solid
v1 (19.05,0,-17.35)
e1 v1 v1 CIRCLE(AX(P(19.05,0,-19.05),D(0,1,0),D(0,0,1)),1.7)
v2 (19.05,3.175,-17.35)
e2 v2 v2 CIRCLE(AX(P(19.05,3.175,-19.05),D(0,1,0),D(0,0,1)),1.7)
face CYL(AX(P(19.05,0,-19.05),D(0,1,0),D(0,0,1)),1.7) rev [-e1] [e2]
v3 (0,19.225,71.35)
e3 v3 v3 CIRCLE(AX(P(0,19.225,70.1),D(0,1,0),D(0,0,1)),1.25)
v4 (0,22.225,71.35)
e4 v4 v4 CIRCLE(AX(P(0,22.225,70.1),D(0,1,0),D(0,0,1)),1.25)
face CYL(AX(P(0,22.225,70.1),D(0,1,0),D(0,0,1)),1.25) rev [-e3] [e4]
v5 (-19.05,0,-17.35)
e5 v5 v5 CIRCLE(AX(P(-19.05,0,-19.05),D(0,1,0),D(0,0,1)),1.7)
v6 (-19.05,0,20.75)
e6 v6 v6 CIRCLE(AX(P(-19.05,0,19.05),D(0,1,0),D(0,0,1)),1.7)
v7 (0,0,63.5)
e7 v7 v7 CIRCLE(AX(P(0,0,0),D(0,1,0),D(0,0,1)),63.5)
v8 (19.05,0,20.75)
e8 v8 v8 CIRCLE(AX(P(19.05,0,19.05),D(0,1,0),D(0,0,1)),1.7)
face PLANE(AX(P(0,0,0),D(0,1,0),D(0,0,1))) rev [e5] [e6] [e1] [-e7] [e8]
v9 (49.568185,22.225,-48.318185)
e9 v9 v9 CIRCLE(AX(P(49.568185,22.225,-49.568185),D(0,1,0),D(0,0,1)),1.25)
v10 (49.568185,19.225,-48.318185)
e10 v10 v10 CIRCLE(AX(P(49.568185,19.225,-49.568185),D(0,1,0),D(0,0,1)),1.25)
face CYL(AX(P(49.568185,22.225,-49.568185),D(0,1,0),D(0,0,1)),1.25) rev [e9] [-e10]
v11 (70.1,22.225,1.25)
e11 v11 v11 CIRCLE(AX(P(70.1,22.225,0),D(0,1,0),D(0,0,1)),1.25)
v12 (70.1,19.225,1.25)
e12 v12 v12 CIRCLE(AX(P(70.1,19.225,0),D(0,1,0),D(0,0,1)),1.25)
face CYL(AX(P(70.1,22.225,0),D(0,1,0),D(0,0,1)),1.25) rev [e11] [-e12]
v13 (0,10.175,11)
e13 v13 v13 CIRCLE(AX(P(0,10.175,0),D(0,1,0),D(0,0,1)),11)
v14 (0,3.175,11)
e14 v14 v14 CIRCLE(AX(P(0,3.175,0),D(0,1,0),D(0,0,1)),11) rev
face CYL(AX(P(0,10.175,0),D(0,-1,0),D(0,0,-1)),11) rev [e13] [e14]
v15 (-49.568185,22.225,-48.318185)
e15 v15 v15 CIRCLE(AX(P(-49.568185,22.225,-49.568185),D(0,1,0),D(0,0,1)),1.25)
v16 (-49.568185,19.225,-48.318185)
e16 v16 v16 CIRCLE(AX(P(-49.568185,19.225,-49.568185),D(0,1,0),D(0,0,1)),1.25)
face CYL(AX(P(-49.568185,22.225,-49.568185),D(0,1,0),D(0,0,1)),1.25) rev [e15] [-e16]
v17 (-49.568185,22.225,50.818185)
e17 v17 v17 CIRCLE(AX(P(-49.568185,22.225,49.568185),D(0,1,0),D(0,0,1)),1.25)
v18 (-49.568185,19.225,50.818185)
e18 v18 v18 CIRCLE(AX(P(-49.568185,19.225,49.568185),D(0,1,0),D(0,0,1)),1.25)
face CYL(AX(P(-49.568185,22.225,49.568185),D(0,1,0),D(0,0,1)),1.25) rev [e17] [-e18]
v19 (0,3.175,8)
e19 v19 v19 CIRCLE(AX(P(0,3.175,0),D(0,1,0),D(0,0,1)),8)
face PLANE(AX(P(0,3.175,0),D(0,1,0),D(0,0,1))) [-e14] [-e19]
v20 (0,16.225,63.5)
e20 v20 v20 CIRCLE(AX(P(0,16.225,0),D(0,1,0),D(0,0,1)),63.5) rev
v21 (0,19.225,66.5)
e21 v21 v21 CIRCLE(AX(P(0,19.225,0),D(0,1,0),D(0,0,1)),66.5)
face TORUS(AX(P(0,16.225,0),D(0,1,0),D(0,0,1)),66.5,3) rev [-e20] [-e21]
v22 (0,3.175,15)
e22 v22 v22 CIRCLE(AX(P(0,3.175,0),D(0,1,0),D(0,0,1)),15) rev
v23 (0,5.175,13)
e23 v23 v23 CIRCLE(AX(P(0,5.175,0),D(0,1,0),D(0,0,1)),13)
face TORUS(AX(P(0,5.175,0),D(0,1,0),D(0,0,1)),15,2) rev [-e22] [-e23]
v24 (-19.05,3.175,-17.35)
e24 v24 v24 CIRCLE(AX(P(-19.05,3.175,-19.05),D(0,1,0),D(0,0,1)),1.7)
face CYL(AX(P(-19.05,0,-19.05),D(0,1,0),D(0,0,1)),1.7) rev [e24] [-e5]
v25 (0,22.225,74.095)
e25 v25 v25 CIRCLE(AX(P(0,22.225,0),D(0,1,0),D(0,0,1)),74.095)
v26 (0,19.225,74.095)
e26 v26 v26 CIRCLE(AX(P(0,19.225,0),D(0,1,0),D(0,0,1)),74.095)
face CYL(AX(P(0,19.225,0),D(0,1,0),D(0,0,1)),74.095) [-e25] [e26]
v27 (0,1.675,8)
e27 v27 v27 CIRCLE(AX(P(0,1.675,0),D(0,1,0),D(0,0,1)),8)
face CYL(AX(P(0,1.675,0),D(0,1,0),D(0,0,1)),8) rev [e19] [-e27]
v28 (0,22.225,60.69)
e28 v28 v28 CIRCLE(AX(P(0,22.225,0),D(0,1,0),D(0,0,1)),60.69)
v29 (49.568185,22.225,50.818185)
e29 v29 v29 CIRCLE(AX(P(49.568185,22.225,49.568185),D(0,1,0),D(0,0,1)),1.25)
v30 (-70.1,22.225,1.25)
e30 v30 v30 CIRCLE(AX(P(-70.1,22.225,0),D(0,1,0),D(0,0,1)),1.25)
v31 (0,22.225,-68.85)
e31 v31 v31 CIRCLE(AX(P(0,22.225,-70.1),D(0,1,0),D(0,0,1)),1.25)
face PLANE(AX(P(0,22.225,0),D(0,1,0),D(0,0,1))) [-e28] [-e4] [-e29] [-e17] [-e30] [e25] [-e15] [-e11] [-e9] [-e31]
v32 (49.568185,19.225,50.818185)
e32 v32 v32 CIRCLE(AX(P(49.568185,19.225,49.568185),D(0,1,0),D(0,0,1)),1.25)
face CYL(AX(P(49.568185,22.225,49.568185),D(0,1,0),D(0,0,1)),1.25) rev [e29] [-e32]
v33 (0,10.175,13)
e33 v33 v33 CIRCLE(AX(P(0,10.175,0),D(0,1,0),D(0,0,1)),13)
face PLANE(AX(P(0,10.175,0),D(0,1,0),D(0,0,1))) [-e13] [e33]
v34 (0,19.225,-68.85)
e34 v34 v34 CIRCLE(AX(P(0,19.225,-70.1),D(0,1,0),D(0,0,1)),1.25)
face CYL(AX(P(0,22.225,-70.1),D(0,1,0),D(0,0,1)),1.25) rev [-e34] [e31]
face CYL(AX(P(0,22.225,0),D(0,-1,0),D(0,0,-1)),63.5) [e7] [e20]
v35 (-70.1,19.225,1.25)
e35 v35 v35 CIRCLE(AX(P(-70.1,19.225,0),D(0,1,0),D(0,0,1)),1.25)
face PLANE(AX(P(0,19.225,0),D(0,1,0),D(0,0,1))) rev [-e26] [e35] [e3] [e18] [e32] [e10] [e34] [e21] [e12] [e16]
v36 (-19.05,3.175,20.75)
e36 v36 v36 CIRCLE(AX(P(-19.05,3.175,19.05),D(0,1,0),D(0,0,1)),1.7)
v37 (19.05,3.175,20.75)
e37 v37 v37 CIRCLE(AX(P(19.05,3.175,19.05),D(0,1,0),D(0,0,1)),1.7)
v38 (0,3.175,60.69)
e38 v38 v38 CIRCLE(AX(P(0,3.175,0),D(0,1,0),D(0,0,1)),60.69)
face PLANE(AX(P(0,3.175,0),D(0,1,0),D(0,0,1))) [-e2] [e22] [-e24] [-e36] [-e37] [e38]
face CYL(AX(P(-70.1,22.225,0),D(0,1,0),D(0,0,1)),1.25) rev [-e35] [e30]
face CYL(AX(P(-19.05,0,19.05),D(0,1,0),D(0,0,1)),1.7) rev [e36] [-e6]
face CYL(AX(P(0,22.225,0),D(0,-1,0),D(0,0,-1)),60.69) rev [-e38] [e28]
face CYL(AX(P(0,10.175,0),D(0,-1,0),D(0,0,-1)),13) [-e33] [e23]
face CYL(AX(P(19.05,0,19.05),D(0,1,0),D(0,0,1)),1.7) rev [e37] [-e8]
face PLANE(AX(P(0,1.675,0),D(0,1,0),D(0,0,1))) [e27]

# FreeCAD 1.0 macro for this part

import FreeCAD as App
import Part
import Sketcher
Q = App.Units.Quantity


def edges_at(feature, points):
    """Names of the edges that pass closest to the given points."""
    edges = feature.Shape.Edges
    near = lambda p: min(range(len(edges)), key=lambda i: edges[i].distToShape(Part.Vertex(*p))[0])
    return sorted({f"Edge{near(p) + 1}" for p in points})

doc = App.newDocument("Part")
body = doc.addObject("PartDesign::Body", "Body")

sketch1 = body.newObject("Sketcher::SketchObject", "Sketch")
sketch1.AttachmentSupport = (doc.getObject("XZ_Plane"), [""])
sketch1.MapMode = "FlatFace"
sketch1.addGeometry(Part.Circle(App.Vector(0, 0, 0), App.Vector(0, 0, 1), 64), False)
sketch1.addGeometry(Part.Circle(App.Vector(0, 0, 0), App.Vector(0, 0, 1), 61), False)
sketch1.addConstraint(Sketcher.Constraint("Coincident", 0, 3, -1, 1))
sketch1.addConstraint(Sketcher.Constraint("Coincident", 1, 3, -1, 1))
sketch1.addConstraint(Sketcher.Constraint("Diameter", 0, Q("127 mm")))
sketch1.addConstraint(Sketcher.Constraint("Diameter", 1, Q("121.38 mm")))
pad1 = body.newObject("PartDesign::Pad", "Pad")
pad1.Profile = sketch1
pad1.Length = 22.225
pad1.Reversed = True

sketch2 = body.newObject("Sketcher::SketchObject", "Sketch001")
sketch2.AttachmentSupport = (doc.getObject("XZ_Plane"), [""])
sketch2.MapMode = "FlatFace"
sketch2.addGeometry(Part.Circle(App.Vector(0, 0, 0), App.Vector(0, 0, 1), 64), False)
sketch2.addConstraint(Sketcher.Constraint("Coincident", 0, 3, -1, 1))
sketch2.addConstraint(Sketcher.Constraint("Diameter", 0, Q("127 mm")))
pad2 = body.newObject("PartDesign::Pad", "Pad001")
pad2.Profile = sketch2
pad2.Length = 3.175
pad2.Reversed = True

sketch3 = body.newObject("Sketcher::SketchObject", "Sketch002")
sketch3.AttachmentSupport = (doc.getObject("XZ_Plane"), [""])
sketch3.MapMode = "FlatFace"
sketch3.AttachmentOffset = App.Placement(App.Vector(0, 0, -3.175), App.Rotation())
sketch3.addGeometry(Part.Circle(App.Vector(0, 0, 0), App.Vector(0, 0, 1), 13), False)
sketch3.addGeometry(Part.Circle(App.Vector(0, 0, 0), App.Vector(0, 0, 1), 11), False)
sketch3.addConstraint(Sketcher.Constraint("Coincident", 0, 3, -1, 1))
sketch3.addConstraint(Sketcher.Constraint("Coincident", 1, 3, -1, 1))
sketch3.addConstraint(Sketcher.Constraint("Diameter", 0, Q("26 mm")))
sketch3.addConstraint(Sketcher.Constraint("Diameter", 1, Q("22 mm")))
pad3 = body.newObject("PartDesign::Pad", "Pad002")
pad3.Profile = sketch3
pad3.Length = 7
pad3.Reversed = True

sketch4 = body.newObject("Sketcher::SketchObject", "Sketch003")
sketch4.AttachmentSupport = (doc.getObject("XZ_Plane"), [""])
sketch4.MapMode = "FlatFace"
sketch4.AttachmentOffset = App.Placement(App.Vector(0, 0, -22.225), App.Rotation())
sketch4.addGeometry(Part.Circle(App.Vector(0, 0, 0), App.Vector(0, 0, 1), 74), False)
sketch4.addGeometry(Part.Circle(App.Vector(0, 0, 0), App.Vector(0, 0, 1), 64), False)
sketch4.addConstraint(Sketcher.Constraint("Coincident", 0, 3, -1, 1))
sketch4.addConstraint(Sketcher.Constraint("Coincident", 1, 3, -1, 1))
sketch4.addConstraint(Sketcher.Constraint("Diameter", 1, Q("127 mm")))
sketch4.addConstraint(Sketcher.Constraint("Diameter", 0, Q("148.19 mm")))
pad4 = body.newObject("PartDesign::Pad", "Pad003")
pad4.Profile = sketch4
pad4.Length = 3

sketch5 = body.newObject("Sketcher::SketchObject", "Sketch004")
sketch5.AttachmentSupport = (doc.getObject("XZ_Plane"), [""])
sketch5.MapMode = "FlatFace"
sketch5.AttachmentOffset = App.Placement(App.Vector(0, 0, -22.225), App.Rotation())
sketch5.addGeometry(Part.Circle(App.Vector(-70.1, 0, 0), App.Vector(0, 0, 1), 1.2), False)
sketch5.addConstraint(Sketcher.Constraint("PointOnObject", 0, 3, -1))
sketch5.addConstraint(Sketcher.Constraint("Diameter", 0, Q("2.5 mm")))
sketch5.addConstraint(Sketcher.Constraint("DistanceX", 0, 3, -1, 1, Q("70.1 mm")))
doc.recompute()
hole = body.newObject("PartDesign::Hole", "Hole")
hole.Profile = sketch5
hole.ThreadType = "None"
hole.Diameter = 2.5
hole.DepthType = "ThroughAll"
hole.Reversed = True
doc.recompute()

polarpattern = body.newObject("PartDesign::PolarPattern", "PolarPattern")
polarpattern.Originals = [hole]
polarpattern.Axis = (doc.getObject("Y_Axis"), [""])
polarpattern.Angle = 360
polarpattern.Occurrences = 8
body.Tip = polarpattern

sketch6 = body.newObject("Sketcher::SketchObject", "Sketch005")
sketch6.AttachmentSupport = (doc.getObject("XZ_Plane"), [""])
sketch6.MapMode = "FlatFace"
sketch6.AttachmentOffset = App.Placement(App.Vector(0, 0, -3.175), App.Rotation())
sketch6.addGeometry(Part.Circle(App.Vector(0, 0, 0), App.Vector(0, 0, 1), 8), False)
sketch6.addConstraint(Sketcher.Constraint("Coincident", 0, 3, -1, 1))
sketch6.addConstraint(Sketcher.Constraint("Diameter", 0, Q("16 mm")))
pocket1 = body.newObject("PartDesign::Pocket", "Pocket")
pocket1.Profile = sketch6
pocket1.Length = 1.5
pocket1.Reversed = True
doc.recompute()

fillet = body.newObject("PartDesign::Fillet", "Fillet")
fillet.Base = (pocket1, edges_at(pocket1, [(-13, 3.175, 0)]))
fillet.Radius = 2
doc.recompute()

fillet2 = body.newObject("PartDesign::Fillet", "Fillet001")
fillet2.Base = (fillet, edges_at(fillet, [(-63.5, 19.225, 0)]))
fillet2.Radius = 3

sketch7 = body.newObject("Sketcher::SketchObject", "Sketch006")
sketch7.AttachmentSupport = (doc.getObject("XZ_Plane"), [""])
sketch7.MapMode = "FlatFace"
sketch7.AttachmentOffset = App.Placement(App.Vector(0, 0, -3.175), App.Rotation())
sketch7.addGeometry(Part.Circle(App.Vector(19.1, 19.1, 0), App.Vector(0, 0, 1), 1.7), False)
sketch7.addGeometry(Part.Circle(App.Vector(19.1, -19.1, 0), App.Vector(0, 0, 1), 1.7), False)
sketch7.addGeometry(Part.Circle(App.Vector(-19.1, 19.1, 0), App.Vector(0, 0, 1), 1.7), False)
sketch7.addGeometry(Part.Circle(App.Vector(-19.1, -19.1, 0), App.Vector(0, 0, 1), 1.7), False)
sketch7.addConstraint(Sketcher.Constraint("Equal", 0, 1))
sketch7.addConstraint(Sketcher.Constraint("Equal", 1, 2))
sketch7.addConstraint(Sketcher.Constraint("Equal", 2, 3))
sketch7.addConstraint(Sketcher.Constraint("Symmetric", 1, 3, 2, 3, -1, 1))
sketch7.addConstraint(Sketcher.Constraint("Symmetric", 0, 3, 3, 3, -1, 1))
sketch7.addConstraint(Sketcher.Constraint("Symmetric", 0, 3, 2, 3, -2))
sketch7.addConstraint(Sketcher.Constraint("Diameter", 0, Q("3.4 mm")))
sketch7.addConstraint(Sketcher.Constraint("DistanceY", 1, 3, 0, 3, Q("38.1 mm")))
sketch7.addConstraint(Sketcher.Constraint("DistanceX", 2, 3, 0, 3, Q("38.1 mm")))
pocket2 = body.newObject("PartDesign::Pocket", "Pocket001")
pocket2.Profile = sketch7
pocket2.Type = "ThroughAll"
pocket2.Reversed = True

doc.recompute()
